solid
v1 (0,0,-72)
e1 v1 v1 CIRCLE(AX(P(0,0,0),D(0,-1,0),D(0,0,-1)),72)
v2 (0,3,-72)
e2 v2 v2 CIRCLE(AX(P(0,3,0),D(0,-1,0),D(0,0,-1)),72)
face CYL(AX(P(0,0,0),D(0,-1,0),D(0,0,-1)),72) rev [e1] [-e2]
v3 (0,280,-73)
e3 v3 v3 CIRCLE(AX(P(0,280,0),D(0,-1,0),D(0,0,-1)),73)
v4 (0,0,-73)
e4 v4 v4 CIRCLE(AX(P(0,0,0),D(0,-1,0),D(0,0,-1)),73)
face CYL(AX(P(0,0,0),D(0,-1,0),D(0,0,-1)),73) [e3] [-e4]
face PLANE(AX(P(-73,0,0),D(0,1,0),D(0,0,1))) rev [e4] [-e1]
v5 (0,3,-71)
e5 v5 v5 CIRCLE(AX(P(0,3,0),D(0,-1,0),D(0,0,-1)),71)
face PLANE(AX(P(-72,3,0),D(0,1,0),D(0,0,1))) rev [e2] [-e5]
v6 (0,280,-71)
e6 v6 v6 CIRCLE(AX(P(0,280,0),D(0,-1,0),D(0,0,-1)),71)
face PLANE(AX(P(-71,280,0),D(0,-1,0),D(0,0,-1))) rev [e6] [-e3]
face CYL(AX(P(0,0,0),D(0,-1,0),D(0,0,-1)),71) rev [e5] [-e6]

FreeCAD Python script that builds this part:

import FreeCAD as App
import Part
import Sketcher
Q = App.Units.Quantity


def add_polygon(sketch, points):
    """Adds a closed chain of lines whose ends are joined by coincident constraints."""
    first, n = sketch.GeometryCount, len(points)
    for a, b in zip(points, points[1:] + points[:1]):
        sketch.addGeometry(Part.LineSegment(App.Vector(*a, 0), App.Vector(*b, 0)), False)
    for i in range(n):
        sketch.addConstraint(Sketcher.Constraint("Coincident", first + i, 2, first + (i + 1) % n, 1))

doc = App.newDocument("Part")
body = doc.addObject("PartDesign::Body", "Body")

# Sketch on XY plane
sketch1 = doc.addObject("Sketcher::SketchObject", "Sketch")
body.addObject(sketch1)
sketch1.AttachmentSupport = (doc.XY_Plane, [""])
sketch1.MapMode = "FlatFace"
add_polygon(sketch1, [(-72, 0), (-72, 3), (-71, 3), (-71, 280), (-73, 280), (-73, 0)])  # lines 0-5
sketch1.addConstraint(Sketcher.Constraint("Vertical", 0))
sketch1.addConstraint(Sketcher.Constraint("Horizontal", 1))
sketch1.addConstraint(Sketcher.Constraint("Vertical", 2))
sketch1.addConstraint(Sketcher.Constraint("Horizontal", 3))
sketch1.addConstraint(Sketcher.Constraint("Vertical", 4))
sketch1.addConstraint(Sketcher.Constraint("Horizontal", 5))
sketch1.addConstraint(Sketcher.Constraint("PointOnObject", 4, 2, -1))
sketch1.addConstraint(Sketcher.Constraint("Equal", 1, 5))
sketch1.addConstraint(Sketcher.Constraint("DistanceX", 1, 1, 1, 2, Q("1 mm")))
sketch1.addConstraint(Sketcher.Constraint("DistanceY", 0, 1, 0, 2, Q("3 mm")))
sketch1.addConstraint(Sketcher.Constraint("DistanceY", 2, 1, 2, 2, Q("277 mm")))
sketch1.addConstraint(Sketcher.Constraint("DistanceX", 0, 2, -1, 1, Q("72 mm")))
revolution = doc.addObject("PartDesign::Revolution", "Revolution")
body.addObject(revolution)
revolution.Profile = sketch1
revolution.ReferenceAxis = (sketch1, ["V_Axis"])
revolution.Angle = 360

doc.recompute()
